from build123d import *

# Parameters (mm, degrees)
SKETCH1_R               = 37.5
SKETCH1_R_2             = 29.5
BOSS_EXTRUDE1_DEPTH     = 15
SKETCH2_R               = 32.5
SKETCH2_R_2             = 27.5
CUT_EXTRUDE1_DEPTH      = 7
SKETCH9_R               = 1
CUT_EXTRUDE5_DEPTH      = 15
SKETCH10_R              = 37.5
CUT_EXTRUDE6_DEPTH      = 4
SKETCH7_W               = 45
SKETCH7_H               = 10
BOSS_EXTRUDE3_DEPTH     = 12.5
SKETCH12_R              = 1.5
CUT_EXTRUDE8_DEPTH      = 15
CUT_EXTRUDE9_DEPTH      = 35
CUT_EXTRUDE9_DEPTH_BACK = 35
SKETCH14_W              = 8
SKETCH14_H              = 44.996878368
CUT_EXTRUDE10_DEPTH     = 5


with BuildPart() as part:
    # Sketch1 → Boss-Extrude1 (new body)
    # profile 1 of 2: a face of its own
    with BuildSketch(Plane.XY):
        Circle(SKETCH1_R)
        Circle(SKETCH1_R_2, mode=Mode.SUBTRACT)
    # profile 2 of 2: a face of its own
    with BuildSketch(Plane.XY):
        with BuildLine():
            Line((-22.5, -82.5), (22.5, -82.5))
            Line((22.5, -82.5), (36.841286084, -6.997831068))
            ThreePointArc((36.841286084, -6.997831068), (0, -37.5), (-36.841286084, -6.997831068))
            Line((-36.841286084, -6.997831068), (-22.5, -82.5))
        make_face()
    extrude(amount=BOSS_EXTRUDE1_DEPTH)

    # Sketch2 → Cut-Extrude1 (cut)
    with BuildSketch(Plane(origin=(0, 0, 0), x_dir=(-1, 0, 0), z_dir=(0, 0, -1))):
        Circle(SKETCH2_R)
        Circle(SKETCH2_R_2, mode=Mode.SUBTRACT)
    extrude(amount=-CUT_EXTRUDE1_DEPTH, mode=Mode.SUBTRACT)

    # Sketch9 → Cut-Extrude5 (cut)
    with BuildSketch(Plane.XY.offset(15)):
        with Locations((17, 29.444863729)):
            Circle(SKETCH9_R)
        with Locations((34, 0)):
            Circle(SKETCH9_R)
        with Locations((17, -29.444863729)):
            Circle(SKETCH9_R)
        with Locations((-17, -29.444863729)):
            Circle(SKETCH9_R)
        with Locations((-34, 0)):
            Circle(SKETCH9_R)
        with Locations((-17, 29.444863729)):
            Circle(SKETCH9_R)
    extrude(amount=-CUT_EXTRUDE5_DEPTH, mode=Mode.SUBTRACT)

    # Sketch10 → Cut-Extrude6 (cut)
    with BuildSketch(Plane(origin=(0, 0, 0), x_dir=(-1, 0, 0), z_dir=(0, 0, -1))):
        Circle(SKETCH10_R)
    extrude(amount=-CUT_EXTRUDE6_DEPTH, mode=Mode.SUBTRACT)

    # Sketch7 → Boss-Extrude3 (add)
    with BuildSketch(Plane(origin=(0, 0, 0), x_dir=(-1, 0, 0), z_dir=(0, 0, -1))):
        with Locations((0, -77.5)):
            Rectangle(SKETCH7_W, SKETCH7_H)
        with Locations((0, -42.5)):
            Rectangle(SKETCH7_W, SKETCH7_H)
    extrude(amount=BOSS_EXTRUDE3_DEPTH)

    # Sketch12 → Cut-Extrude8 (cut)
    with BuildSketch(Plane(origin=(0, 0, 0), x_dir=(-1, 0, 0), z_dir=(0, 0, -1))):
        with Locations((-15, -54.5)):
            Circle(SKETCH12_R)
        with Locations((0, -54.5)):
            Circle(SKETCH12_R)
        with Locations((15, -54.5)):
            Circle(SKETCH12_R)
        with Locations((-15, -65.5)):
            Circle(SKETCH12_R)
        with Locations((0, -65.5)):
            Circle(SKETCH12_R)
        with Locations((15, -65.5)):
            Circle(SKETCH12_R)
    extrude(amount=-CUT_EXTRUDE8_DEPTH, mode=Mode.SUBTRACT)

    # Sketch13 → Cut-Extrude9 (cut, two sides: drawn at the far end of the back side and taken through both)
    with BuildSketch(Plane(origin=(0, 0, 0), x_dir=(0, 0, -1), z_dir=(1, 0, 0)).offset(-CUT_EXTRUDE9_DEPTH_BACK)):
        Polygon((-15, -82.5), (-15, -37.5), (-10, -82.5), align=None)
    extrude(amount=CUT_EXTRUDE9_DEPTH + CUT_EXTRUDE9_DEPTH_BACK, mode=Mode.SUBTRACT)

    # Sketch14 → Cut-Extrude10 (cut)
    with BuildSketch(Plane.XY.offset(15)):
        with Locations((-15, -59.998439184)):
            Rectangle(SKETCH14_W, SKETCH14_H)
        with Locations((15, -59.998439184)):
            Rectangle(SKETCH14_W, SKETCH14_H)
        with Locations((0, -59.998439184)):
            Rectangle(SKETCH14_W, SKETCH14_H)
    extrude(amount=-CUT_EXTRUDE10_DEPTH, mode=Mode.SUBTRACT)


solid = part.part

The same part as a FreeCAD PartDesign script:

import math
import FreeCAD as App
import Part
import Sketcher
from FreeCAD import Vector
Q = App.Units.Quantity


def add_polygon(sketch, points):
    """Adds a closed chain of lines whose ends are joined by coincident constraints."""
    first, n = sketch.GeometryCount, len(points)
    for a, b in zip(points, points[1:] + points[:1]):
        sketch.addGeometry(Part.LineSegment(App.Vector(*a, 0), App.Vector(*b, 0)), False)
    for i in range(n):
        sketch.addConstraint(Sketcher.Constraint("Coincident", first + i, 2, first + (i + 1) % n, 1))

doc = App.newDocument("Part")
body = doc.addObject("PartDesign::Body", "Body")

sketch1 = body.newObject("Sketcher::SketchObject", "Sketch")
sketch1.AttachmentSupport = (doc.getObject("XY_Plane"), [""])
sketch1.MapMode = "FlatFace"
sketch1.addGeometry(Part.LineSegment(Vector(-36.841286, -6.997831, 0), Vector(-22.5, -82.5, 0)), False)
sketch1.addGeometry(Part.LineSegment(Vector(-22.5, -82.5, 0), Vector(22.5, -82.5, 0)), False)
sketch1.addGeometry(Part.LineSegment(Vector(22.5, -82.5, 0), Vector(36.841286, -6.997831, 0)), False)
sketch1.addGeometry(Part.ArcOfCircle(Part.Circle(Vector(0, 0, 0), Vector(0, 0, 1), 37.5), math.radians(-10.754945), math.radians(190.754945)), False)
sketch1.addGeometry(Part.Circle(Vector(0, 0, 0), Vector(0, 0, 1), 29.5), False)
sketch1.addConstraint(Sketcher.Constraint("Coincident", 0, 2, 1, 1))
sketch1.addConstraint(Sketcher.Constraint("Coincident", 1, 2, 2, 1))
sketch1.addConstraint(Sketcher.Constraint("Tangent", 2, 2, 3, 1))
sketch1.addConstraint(Sketcher.Constraint("Tangent", 3, 2, 0, 1))
sketch1.addConstraint(Sketcher.Constraint("Horizontal", 1))
sketch1.addConstraint(Sketcher.Constraint("Coincident", 3, 3, -1, 1))
sketch1.addConstraint(Sketcher.Constraint("Coincident", 4, 3, -1, 1))
sketch1.addConstraint(Sketcher.Constraint("Horizontal", 2, 2, 3, 2))
sketch1.addConstraint(Sketcher.Constraint("Diameter", 4, Q("59 mm")))
sketch1.addConstraint(Sketcher.Constraint("Radius", 3, Q("37.5 mm")))
sketch1.addConstraint(Sketcher.Constraint("DistanceX", 1, 1, 1, 2, Q("45 mm")))
sketch1.addConstraint(Sketcher.Constraint("DistanceY", 0, 2, -1, 1, Q("82.5 mm")))
pad1 = body.newObject("PartDesign::Pad", "Pad")
pad1.Profile = sketch1
pad1.Length = 15

sketch2 = body.newObject("Sketcher::SketchObject", "Sketch001")
sketch2.AttachmentSupport = (doc.getObject("XY_Plane"), [""])
sketch2.MapMode = "FlatFace"
sketch2.addGeometry(Part.Circle(Vector(0, 0, 0), Vector(0, 0, 1), 32.5), False)
sketch2.addGeometry(Part.Circle(Vector(0, 0, 0), Vector(0, 0, 1), 27.5), False)
sketch2.addConstraint(Sketcher.Constraint("Coincident", 0, 3, -1, 1))
sketch2.addConstraint(Sketcher.Constraint("Coincident", 1, 3, -1, 1))
sketch2.addConstraint(Sketcher.Constraint("Diameter", 0, Q("65 mm")))
sketch2.addConstraint(Sketcher.Constraint("Diameter", 1, Q("55 mm")))
pocket1 = body.newObject("PartDesign::Pocket", "Pocket")
pocket1.Profile = sketch2
pocket1.Length = 7
pocket1.Reversed = True

sketch3 = body.newObject("Sketcher::SketchObject", "Sketch002")
sketch3.AttachmentSupport = (doc.getObject("XY_Plane"), [""])
sketch3.MapMode = "FlatFace"
sketch3.AttachmentOffset = App.Placement(Vector(0, 0, 15), App.Rotation())
sketch3.addGeometry(Part.Circle(Vector(17, 29.444864, 0), Vector(0, 0, 1), 1), False)
sketch3.addGeometry(Part.Circle(Vector(34, 0, 0), Vector(0, 0, 1), 1), False)
sketch3.addGeometry(Part.Circle(Vector(17, -29.444864, 0), Vector(0, 0, 1), 1), False)
sketch3.addGeometry(Part.Circle(Vector(-17, -29.444864, 0), Vector(0, 0, 1), 1), False)
sketch3.addGeometry(Part.Circle(Vector(-34, 0, 0), Vector(0, 0, 1), 1), False)
sketch3.addGeometry(Part.Circle(Vector(-17, 29.444864, 0), Vector(0, 0, 1), 1), False)
sketch3.addConstraint(Sketcher.Constraint("Equal", 0, 1))
sketch3.addConstraint(Sketcher.Constraint("Equal", 1, 2))
sketch3.addConstraint(Sketcher.Constraint("Equal", 2, 3))
sketch3.addConstraint(Sketcher.Constraint("Equal", 3, 4))
sketch3.addConstraint(Sketcher.Constraint("Equal", 4, 5))
sketch3.addConstraint(Sketcher.Constraint("Symmetric", 0, 3, 3, 3, -1, 1))
sketch3.addConstraint(Sketcher.Constraint("Symmetric", 1, 3, 4, 3, -1, 1))
sketch3.addConstraint(Sketcher.Constraint("Symmetric", 2, 3, 5, 3, -1, 1))
sketch3.addConstraint(Sketcher.Constraint("Symmetric", 2, 3, 3, 3, -2))
sketch3.addConstraint(Sketcher.Constraint("PointOnObject", 1, 3, -1))
sketch3.addConstraint(Sketcher.Constraint("Diameter", 0, Q("2 mm")))
sketch3.addConstraint(Sketcher.Constraint("DistanceX", -1, 1, 0, 3, Q("17 mm")))
sketch3.addConstraint(Sketcher.Constraint("DistanceX", -1, 1, 1, 3, Q("34 mm")))
sketch3.addConstraint(Sketcher.Constraint("DistanceY", -1, 1, 0, 3, Q("29.444864 mm")))
pocket2 = body.newObject("PartDesign::Pocket", "Pocket001")
pocket2.Profile = sketch3
pocket2.Length = 15

sketch4 = body.newObject("Sketcher::SketchObject", "Sketch003")
sketch4.AttachmentSupport = (doc.getObject("XY_Plane"), [""])
sketch4.MapMode = "FlatFace"
sketch4.addGeometry(Part.Circle(Vector(0, 0, 0), Vector(0, 0, 1), 37.5), False)
sketch4.addConstraint(Sketcher.Constraint("Coincident", 0, 3, -1, 1))
sketch4.addConstraint(Sketcher.Constraint("Diameter", 0, Q("75 mm")))
pocket3 = body.newObject("PartDesign::Pocket", "Pocket002")
pocket3.Profile = sketch4
pocket3.Length = 4
pocket3.Reversed = True

sketch5 = body.newObject("Sketcher::SketchObject", "Sketch004")
sketch5.AttachmentSupport = (doc.getObject("XY_Plane"), [""])
sketch5.MapMode = "FlatFace"
add_polygon(sketch5, [(22.5, -72.5), (22.5, -82.5), (-22.5, -82.5), (-22.5, -72.5)])
add_polygon(sketch5, [(22.5, -37.5), (22.5, -47.5), (-22.5, -47.5), (-22.5, -37.5)])
sketch5.addConstraint(Sketcher.Constraint("Vertical", 0))
sketch5.addConstraint(Sketcher.Constraint("Horizontal", 1))
sketch5.addConstraint(Sketcher.Constraint("Vertical", 2))
sketch5.addConstraint(Sketcher.Constraint("Horizontal", 3))
sketch5.addConstraint(Sketcher.Constraint("Vertical", 4))
sketch5.addConstraint(Sketcher.Constraint("Horizontal", 5))
sketch5.addConstraint(Sketcher.Constraint("Vertical", 6))
sketch5.addConstraint(Sketcher.Constraint("Horizontal", 7))
sketch5.addConstraint(Sketcher.Constraint("Vertical", 3, 2, 4, 2))
sketch5.addConstraint(Sketcher.Constraint("Vertical", 2, 2, 5, 2))
sketch5.addConstraint(Sketcher.Constraint("Equal", 2, 4))
sketch5.addConstraint(Sketcher.Constraint("DistanceX", 1, 2, 1, 1, Q("45 mm")))
sketch5.addConstraint(Sketcher.Constraint("DistanceY", 0, 2, 0, 1, Q("10 mm")))
sketch5.addConstraint(Sketcher.Constraint("DistanceY", 3, 2, 4, 2, Q("25 mm")))
sketch5.addConstraint(Sketcher.Constraint("DistanceX", -1, 1, 0, 2, Q("22.5 mm")))
sketch5.addConstraint(Sketcher.Constraint("DistanceY", 0, 2, -1, 1, Q("82.5 mm")))
pad2 = body.newObject("PartDesign::Pad", "Pad001")
pad2.Profile = sketch5
pad2.Length = 12.5
pad2.Reversed = True

sketch6 = body.newObject("Sketcher::SketchObject", "Sketch005")
sketch6.AttachmentSupport = (doc.getObject("XY_Plane"), [""])
sketch6.MapMode = "FlatFace"
sketch6.addGeometry(Part.Circle(Vector(15, -54.5, 0), Vector(0, 0, 1), 1.5), False)
sketch6.addGeometry(Part.Circle(Vector(0, -54.5, 0), Vector(0, 0, 1), 1.5), False)
sketch6.addGeometry(Part.Circle(Vector(-15, -54.5, 0), Vector(0, 0, 1), 1.5), False)
sketch6.addGeometry(Part.Circle(Vector(15, -65.5, 0), Vector(0, 0, 1), 1.5), False)
sketch6.addGeometry(Part.Circle(Vector(0, -65.5, 0), Vector(0, 0, 1), 1.5), False)
sketch6.addGeometry(Part.Circle(Vector(-15, -65.5, 0), Vector(0, 0, 1), 1.5), False)
sketch6.addConstraint(Sketcher.Constraint("Equal", 0, 1))
sketch6.addConstraint(Sketcher.Constraint("Equal", 1, 2))
sketch6.addConstraint(Sketcher.Constraint("Equal", 2, 3))
sketch6.addConstraint(Sketcher.Constraint("Equal", 3, 4))
sketch6.addConstraint(Sketcher.Constraint("Equal", 4, 5))
sketch6.addConstraint(Sketcher.Constraint("Symmetric", 0, 3, 2, 3, -2))
sketch6.addConstraint(Sketcher.Constraint("Symmetric", 3, 3, 5, 3, -2))
sketch6.addConstraint(Sketcher.Constraint("PointOnObject", 1, 3, -2))
sketch6.addConstraint(Sketcher.Constraint("PointOnObject", 4, 3, -2))
sketch6.addConstraint(Sketcher.Constraint("Horizontal", 0, 3, 1, 3))
sketch6.addConstraint(Sketcher.Constraint("Horizontal", 3, 3, 4, 3))
sketch6.addConstraint(Sketcher.Constraint("Vertical", 0, 3, 3, 3))
sketch6.addConstraint(Sketcher.Constraint("Diameter", 0, Q("3 mm")))
sketch6.addConstraint(Sketcher.Constraint("DistanceX", -1, 1, 0, 3, Q("15 mm")))
sketch6.addConstraint(Sketcher.Constraint("DistanceY", 3, 3, 0, 3, Q("11 mm")))
sketch6.addConstraint(Sketcher.Constraint("DistanceY", 0, 3, -1, 1, Q("54.5 mm")))
pocket4 = body.newObject("PartDesign::Pocket", "Pocket003")
pocket4.Profile = sketch6
pocket4.Length = 15
pocket4.Reversed = True

sketch7 = body.newObject("Sketcher::SketchObject", "Sketch006")
sketch7.AttachmentSupport = (doc.getObject("YZ_Plane"), [""])
sketch7.MapMode = "FlatFace"
add_polygon(sketch7, [(-37.5, 15), (-82.5, 15), (-82.5, 10)])
sketch7.addConstraint(Sketcher.Constraint("Horizontal", 0))
sketch7.addConstraint(Sketcher.Constraint("Vertical", 1))
sketch7.addConstraint(Sketcher.Constraint("DistanceX", 0, 2, 0, 1, Q("45 mm")))
sketch7.addConstraint(Sketcher.Constraint("DistanceY", 1, 2, 1, 1, Q("5 mm")))
sketch7.addConstraint(Sketcher.Constraint("DistanceY", -1, 1, 0, 2, Q("15 mm")))
sketch7.addConstraint(Sketcher.Constraint("DistanceX", 0, 2, -1, 1, Q("82.5 mm")))
pocket5 = body.newObject("PartDesign::Pocket", "Pocket004")
pocket5.Profile = sketch7
pocket5.Type = "ThroughAll"
pocket5.Midplane = True

sketch8 = body.newObject("Sketcher::SketchObject", "Sketch007")
sketch8.AttachmentSupport = (doc.getObject("XY_Plane"), [""])
sketch8.MapMode = "FlatFace"
sketch8.AttachmentOffset = App.Placement(Vector(0, 0, 15), App.Rotation())
add_polygon(sketch8, [(-19, -37.5), (-19, -82.496878), (-11, -82.496878), (-11, -37.5)])
add_polygon(sketch8, [(11, -37.5), (11, -82.496878), (19, -82.496878), (19, -37.5)])
add_polygon(sketch8, [(-4, -37.5), (-4, -82.496878), (4, -82.496878), (4, -37.5)])
sketch8.addConstraint(Sketcher.Constraint("Vertical", 0))
sketch8.addConstraint(Sketcher.Constraint("Horizontal", 1))
sketch8.addConstraint(Sketcher.Constraint("Vertical", 2))
sketch8.addConstraint(Sketcher.Constraint("Horizontal", 3))
sketch8.addConstraint(Sketcher.Constraint("Vertical", 4))
sketch8.addConstraint(Sketcher.Constraint("Horizontal", 5))
sketch8.addConstraint(Sketcher.Constraint("Vertical", 6))
sketch8.addConstraint(Sketcher.Constraint("Horizontal", 7))
sketch8.addConstraint(Sketcher.Constraint("Vertical", 8))
sketch8.addConstraint(Sketcher.Constraint("Horizontal", 9))
sketch8.addConstraint(Sketcher.Constraint("Vertical", 10))
sketch8.addConstraint(Sketcher.Constraint("Horizontal", 11))
sketch8.addConstraint(Sketcher.Constraint("Symmetric", 1, 2, 4, 2, -2))
sketch8.addConstraint(Sketcher.Constraint("Symmetric", 3, 2, 6, 2, -2))
sketch8.addConstraint(Sketcher.Constraint("Horizontal", 5, 2, 8, 2))
sketch8.addConstraint(Sketcher.Constraint("Horizontal", 7, 2, 10, 2))
sketch8.addConstraint(Sketcher.Constraint("Equal", 7, 9))
sketch8.addConstraint(Sketcher.Constraint("DistanceX", 1, 1, 1, 2, Q("8 mm")))
sketch8.addConstraint(Sketcher.Constraint("DistanceX", 0, 2, -1, 1, Q("19 mm")))
sketch8.addConstraint(Sketcher.Constraint("DistanceX", 8, 2, -1, 1, Q("4 mm")))
sketch8.addConstraint(Sketcher.Constraint("DistanceY", 2, 2, -1, 1, Q("37.5 mm")))
sketch8.addConstraint(Sketcher.Constraint("DistanceY", 0, 2, 0, 1, Q("44.996878 mm")))
pocket6 = body.newObject("PartDesign::Pocket", "Pocket005")
pocket6.Profile = sketch8
pocket6.Length = 5

doc.recompute()
